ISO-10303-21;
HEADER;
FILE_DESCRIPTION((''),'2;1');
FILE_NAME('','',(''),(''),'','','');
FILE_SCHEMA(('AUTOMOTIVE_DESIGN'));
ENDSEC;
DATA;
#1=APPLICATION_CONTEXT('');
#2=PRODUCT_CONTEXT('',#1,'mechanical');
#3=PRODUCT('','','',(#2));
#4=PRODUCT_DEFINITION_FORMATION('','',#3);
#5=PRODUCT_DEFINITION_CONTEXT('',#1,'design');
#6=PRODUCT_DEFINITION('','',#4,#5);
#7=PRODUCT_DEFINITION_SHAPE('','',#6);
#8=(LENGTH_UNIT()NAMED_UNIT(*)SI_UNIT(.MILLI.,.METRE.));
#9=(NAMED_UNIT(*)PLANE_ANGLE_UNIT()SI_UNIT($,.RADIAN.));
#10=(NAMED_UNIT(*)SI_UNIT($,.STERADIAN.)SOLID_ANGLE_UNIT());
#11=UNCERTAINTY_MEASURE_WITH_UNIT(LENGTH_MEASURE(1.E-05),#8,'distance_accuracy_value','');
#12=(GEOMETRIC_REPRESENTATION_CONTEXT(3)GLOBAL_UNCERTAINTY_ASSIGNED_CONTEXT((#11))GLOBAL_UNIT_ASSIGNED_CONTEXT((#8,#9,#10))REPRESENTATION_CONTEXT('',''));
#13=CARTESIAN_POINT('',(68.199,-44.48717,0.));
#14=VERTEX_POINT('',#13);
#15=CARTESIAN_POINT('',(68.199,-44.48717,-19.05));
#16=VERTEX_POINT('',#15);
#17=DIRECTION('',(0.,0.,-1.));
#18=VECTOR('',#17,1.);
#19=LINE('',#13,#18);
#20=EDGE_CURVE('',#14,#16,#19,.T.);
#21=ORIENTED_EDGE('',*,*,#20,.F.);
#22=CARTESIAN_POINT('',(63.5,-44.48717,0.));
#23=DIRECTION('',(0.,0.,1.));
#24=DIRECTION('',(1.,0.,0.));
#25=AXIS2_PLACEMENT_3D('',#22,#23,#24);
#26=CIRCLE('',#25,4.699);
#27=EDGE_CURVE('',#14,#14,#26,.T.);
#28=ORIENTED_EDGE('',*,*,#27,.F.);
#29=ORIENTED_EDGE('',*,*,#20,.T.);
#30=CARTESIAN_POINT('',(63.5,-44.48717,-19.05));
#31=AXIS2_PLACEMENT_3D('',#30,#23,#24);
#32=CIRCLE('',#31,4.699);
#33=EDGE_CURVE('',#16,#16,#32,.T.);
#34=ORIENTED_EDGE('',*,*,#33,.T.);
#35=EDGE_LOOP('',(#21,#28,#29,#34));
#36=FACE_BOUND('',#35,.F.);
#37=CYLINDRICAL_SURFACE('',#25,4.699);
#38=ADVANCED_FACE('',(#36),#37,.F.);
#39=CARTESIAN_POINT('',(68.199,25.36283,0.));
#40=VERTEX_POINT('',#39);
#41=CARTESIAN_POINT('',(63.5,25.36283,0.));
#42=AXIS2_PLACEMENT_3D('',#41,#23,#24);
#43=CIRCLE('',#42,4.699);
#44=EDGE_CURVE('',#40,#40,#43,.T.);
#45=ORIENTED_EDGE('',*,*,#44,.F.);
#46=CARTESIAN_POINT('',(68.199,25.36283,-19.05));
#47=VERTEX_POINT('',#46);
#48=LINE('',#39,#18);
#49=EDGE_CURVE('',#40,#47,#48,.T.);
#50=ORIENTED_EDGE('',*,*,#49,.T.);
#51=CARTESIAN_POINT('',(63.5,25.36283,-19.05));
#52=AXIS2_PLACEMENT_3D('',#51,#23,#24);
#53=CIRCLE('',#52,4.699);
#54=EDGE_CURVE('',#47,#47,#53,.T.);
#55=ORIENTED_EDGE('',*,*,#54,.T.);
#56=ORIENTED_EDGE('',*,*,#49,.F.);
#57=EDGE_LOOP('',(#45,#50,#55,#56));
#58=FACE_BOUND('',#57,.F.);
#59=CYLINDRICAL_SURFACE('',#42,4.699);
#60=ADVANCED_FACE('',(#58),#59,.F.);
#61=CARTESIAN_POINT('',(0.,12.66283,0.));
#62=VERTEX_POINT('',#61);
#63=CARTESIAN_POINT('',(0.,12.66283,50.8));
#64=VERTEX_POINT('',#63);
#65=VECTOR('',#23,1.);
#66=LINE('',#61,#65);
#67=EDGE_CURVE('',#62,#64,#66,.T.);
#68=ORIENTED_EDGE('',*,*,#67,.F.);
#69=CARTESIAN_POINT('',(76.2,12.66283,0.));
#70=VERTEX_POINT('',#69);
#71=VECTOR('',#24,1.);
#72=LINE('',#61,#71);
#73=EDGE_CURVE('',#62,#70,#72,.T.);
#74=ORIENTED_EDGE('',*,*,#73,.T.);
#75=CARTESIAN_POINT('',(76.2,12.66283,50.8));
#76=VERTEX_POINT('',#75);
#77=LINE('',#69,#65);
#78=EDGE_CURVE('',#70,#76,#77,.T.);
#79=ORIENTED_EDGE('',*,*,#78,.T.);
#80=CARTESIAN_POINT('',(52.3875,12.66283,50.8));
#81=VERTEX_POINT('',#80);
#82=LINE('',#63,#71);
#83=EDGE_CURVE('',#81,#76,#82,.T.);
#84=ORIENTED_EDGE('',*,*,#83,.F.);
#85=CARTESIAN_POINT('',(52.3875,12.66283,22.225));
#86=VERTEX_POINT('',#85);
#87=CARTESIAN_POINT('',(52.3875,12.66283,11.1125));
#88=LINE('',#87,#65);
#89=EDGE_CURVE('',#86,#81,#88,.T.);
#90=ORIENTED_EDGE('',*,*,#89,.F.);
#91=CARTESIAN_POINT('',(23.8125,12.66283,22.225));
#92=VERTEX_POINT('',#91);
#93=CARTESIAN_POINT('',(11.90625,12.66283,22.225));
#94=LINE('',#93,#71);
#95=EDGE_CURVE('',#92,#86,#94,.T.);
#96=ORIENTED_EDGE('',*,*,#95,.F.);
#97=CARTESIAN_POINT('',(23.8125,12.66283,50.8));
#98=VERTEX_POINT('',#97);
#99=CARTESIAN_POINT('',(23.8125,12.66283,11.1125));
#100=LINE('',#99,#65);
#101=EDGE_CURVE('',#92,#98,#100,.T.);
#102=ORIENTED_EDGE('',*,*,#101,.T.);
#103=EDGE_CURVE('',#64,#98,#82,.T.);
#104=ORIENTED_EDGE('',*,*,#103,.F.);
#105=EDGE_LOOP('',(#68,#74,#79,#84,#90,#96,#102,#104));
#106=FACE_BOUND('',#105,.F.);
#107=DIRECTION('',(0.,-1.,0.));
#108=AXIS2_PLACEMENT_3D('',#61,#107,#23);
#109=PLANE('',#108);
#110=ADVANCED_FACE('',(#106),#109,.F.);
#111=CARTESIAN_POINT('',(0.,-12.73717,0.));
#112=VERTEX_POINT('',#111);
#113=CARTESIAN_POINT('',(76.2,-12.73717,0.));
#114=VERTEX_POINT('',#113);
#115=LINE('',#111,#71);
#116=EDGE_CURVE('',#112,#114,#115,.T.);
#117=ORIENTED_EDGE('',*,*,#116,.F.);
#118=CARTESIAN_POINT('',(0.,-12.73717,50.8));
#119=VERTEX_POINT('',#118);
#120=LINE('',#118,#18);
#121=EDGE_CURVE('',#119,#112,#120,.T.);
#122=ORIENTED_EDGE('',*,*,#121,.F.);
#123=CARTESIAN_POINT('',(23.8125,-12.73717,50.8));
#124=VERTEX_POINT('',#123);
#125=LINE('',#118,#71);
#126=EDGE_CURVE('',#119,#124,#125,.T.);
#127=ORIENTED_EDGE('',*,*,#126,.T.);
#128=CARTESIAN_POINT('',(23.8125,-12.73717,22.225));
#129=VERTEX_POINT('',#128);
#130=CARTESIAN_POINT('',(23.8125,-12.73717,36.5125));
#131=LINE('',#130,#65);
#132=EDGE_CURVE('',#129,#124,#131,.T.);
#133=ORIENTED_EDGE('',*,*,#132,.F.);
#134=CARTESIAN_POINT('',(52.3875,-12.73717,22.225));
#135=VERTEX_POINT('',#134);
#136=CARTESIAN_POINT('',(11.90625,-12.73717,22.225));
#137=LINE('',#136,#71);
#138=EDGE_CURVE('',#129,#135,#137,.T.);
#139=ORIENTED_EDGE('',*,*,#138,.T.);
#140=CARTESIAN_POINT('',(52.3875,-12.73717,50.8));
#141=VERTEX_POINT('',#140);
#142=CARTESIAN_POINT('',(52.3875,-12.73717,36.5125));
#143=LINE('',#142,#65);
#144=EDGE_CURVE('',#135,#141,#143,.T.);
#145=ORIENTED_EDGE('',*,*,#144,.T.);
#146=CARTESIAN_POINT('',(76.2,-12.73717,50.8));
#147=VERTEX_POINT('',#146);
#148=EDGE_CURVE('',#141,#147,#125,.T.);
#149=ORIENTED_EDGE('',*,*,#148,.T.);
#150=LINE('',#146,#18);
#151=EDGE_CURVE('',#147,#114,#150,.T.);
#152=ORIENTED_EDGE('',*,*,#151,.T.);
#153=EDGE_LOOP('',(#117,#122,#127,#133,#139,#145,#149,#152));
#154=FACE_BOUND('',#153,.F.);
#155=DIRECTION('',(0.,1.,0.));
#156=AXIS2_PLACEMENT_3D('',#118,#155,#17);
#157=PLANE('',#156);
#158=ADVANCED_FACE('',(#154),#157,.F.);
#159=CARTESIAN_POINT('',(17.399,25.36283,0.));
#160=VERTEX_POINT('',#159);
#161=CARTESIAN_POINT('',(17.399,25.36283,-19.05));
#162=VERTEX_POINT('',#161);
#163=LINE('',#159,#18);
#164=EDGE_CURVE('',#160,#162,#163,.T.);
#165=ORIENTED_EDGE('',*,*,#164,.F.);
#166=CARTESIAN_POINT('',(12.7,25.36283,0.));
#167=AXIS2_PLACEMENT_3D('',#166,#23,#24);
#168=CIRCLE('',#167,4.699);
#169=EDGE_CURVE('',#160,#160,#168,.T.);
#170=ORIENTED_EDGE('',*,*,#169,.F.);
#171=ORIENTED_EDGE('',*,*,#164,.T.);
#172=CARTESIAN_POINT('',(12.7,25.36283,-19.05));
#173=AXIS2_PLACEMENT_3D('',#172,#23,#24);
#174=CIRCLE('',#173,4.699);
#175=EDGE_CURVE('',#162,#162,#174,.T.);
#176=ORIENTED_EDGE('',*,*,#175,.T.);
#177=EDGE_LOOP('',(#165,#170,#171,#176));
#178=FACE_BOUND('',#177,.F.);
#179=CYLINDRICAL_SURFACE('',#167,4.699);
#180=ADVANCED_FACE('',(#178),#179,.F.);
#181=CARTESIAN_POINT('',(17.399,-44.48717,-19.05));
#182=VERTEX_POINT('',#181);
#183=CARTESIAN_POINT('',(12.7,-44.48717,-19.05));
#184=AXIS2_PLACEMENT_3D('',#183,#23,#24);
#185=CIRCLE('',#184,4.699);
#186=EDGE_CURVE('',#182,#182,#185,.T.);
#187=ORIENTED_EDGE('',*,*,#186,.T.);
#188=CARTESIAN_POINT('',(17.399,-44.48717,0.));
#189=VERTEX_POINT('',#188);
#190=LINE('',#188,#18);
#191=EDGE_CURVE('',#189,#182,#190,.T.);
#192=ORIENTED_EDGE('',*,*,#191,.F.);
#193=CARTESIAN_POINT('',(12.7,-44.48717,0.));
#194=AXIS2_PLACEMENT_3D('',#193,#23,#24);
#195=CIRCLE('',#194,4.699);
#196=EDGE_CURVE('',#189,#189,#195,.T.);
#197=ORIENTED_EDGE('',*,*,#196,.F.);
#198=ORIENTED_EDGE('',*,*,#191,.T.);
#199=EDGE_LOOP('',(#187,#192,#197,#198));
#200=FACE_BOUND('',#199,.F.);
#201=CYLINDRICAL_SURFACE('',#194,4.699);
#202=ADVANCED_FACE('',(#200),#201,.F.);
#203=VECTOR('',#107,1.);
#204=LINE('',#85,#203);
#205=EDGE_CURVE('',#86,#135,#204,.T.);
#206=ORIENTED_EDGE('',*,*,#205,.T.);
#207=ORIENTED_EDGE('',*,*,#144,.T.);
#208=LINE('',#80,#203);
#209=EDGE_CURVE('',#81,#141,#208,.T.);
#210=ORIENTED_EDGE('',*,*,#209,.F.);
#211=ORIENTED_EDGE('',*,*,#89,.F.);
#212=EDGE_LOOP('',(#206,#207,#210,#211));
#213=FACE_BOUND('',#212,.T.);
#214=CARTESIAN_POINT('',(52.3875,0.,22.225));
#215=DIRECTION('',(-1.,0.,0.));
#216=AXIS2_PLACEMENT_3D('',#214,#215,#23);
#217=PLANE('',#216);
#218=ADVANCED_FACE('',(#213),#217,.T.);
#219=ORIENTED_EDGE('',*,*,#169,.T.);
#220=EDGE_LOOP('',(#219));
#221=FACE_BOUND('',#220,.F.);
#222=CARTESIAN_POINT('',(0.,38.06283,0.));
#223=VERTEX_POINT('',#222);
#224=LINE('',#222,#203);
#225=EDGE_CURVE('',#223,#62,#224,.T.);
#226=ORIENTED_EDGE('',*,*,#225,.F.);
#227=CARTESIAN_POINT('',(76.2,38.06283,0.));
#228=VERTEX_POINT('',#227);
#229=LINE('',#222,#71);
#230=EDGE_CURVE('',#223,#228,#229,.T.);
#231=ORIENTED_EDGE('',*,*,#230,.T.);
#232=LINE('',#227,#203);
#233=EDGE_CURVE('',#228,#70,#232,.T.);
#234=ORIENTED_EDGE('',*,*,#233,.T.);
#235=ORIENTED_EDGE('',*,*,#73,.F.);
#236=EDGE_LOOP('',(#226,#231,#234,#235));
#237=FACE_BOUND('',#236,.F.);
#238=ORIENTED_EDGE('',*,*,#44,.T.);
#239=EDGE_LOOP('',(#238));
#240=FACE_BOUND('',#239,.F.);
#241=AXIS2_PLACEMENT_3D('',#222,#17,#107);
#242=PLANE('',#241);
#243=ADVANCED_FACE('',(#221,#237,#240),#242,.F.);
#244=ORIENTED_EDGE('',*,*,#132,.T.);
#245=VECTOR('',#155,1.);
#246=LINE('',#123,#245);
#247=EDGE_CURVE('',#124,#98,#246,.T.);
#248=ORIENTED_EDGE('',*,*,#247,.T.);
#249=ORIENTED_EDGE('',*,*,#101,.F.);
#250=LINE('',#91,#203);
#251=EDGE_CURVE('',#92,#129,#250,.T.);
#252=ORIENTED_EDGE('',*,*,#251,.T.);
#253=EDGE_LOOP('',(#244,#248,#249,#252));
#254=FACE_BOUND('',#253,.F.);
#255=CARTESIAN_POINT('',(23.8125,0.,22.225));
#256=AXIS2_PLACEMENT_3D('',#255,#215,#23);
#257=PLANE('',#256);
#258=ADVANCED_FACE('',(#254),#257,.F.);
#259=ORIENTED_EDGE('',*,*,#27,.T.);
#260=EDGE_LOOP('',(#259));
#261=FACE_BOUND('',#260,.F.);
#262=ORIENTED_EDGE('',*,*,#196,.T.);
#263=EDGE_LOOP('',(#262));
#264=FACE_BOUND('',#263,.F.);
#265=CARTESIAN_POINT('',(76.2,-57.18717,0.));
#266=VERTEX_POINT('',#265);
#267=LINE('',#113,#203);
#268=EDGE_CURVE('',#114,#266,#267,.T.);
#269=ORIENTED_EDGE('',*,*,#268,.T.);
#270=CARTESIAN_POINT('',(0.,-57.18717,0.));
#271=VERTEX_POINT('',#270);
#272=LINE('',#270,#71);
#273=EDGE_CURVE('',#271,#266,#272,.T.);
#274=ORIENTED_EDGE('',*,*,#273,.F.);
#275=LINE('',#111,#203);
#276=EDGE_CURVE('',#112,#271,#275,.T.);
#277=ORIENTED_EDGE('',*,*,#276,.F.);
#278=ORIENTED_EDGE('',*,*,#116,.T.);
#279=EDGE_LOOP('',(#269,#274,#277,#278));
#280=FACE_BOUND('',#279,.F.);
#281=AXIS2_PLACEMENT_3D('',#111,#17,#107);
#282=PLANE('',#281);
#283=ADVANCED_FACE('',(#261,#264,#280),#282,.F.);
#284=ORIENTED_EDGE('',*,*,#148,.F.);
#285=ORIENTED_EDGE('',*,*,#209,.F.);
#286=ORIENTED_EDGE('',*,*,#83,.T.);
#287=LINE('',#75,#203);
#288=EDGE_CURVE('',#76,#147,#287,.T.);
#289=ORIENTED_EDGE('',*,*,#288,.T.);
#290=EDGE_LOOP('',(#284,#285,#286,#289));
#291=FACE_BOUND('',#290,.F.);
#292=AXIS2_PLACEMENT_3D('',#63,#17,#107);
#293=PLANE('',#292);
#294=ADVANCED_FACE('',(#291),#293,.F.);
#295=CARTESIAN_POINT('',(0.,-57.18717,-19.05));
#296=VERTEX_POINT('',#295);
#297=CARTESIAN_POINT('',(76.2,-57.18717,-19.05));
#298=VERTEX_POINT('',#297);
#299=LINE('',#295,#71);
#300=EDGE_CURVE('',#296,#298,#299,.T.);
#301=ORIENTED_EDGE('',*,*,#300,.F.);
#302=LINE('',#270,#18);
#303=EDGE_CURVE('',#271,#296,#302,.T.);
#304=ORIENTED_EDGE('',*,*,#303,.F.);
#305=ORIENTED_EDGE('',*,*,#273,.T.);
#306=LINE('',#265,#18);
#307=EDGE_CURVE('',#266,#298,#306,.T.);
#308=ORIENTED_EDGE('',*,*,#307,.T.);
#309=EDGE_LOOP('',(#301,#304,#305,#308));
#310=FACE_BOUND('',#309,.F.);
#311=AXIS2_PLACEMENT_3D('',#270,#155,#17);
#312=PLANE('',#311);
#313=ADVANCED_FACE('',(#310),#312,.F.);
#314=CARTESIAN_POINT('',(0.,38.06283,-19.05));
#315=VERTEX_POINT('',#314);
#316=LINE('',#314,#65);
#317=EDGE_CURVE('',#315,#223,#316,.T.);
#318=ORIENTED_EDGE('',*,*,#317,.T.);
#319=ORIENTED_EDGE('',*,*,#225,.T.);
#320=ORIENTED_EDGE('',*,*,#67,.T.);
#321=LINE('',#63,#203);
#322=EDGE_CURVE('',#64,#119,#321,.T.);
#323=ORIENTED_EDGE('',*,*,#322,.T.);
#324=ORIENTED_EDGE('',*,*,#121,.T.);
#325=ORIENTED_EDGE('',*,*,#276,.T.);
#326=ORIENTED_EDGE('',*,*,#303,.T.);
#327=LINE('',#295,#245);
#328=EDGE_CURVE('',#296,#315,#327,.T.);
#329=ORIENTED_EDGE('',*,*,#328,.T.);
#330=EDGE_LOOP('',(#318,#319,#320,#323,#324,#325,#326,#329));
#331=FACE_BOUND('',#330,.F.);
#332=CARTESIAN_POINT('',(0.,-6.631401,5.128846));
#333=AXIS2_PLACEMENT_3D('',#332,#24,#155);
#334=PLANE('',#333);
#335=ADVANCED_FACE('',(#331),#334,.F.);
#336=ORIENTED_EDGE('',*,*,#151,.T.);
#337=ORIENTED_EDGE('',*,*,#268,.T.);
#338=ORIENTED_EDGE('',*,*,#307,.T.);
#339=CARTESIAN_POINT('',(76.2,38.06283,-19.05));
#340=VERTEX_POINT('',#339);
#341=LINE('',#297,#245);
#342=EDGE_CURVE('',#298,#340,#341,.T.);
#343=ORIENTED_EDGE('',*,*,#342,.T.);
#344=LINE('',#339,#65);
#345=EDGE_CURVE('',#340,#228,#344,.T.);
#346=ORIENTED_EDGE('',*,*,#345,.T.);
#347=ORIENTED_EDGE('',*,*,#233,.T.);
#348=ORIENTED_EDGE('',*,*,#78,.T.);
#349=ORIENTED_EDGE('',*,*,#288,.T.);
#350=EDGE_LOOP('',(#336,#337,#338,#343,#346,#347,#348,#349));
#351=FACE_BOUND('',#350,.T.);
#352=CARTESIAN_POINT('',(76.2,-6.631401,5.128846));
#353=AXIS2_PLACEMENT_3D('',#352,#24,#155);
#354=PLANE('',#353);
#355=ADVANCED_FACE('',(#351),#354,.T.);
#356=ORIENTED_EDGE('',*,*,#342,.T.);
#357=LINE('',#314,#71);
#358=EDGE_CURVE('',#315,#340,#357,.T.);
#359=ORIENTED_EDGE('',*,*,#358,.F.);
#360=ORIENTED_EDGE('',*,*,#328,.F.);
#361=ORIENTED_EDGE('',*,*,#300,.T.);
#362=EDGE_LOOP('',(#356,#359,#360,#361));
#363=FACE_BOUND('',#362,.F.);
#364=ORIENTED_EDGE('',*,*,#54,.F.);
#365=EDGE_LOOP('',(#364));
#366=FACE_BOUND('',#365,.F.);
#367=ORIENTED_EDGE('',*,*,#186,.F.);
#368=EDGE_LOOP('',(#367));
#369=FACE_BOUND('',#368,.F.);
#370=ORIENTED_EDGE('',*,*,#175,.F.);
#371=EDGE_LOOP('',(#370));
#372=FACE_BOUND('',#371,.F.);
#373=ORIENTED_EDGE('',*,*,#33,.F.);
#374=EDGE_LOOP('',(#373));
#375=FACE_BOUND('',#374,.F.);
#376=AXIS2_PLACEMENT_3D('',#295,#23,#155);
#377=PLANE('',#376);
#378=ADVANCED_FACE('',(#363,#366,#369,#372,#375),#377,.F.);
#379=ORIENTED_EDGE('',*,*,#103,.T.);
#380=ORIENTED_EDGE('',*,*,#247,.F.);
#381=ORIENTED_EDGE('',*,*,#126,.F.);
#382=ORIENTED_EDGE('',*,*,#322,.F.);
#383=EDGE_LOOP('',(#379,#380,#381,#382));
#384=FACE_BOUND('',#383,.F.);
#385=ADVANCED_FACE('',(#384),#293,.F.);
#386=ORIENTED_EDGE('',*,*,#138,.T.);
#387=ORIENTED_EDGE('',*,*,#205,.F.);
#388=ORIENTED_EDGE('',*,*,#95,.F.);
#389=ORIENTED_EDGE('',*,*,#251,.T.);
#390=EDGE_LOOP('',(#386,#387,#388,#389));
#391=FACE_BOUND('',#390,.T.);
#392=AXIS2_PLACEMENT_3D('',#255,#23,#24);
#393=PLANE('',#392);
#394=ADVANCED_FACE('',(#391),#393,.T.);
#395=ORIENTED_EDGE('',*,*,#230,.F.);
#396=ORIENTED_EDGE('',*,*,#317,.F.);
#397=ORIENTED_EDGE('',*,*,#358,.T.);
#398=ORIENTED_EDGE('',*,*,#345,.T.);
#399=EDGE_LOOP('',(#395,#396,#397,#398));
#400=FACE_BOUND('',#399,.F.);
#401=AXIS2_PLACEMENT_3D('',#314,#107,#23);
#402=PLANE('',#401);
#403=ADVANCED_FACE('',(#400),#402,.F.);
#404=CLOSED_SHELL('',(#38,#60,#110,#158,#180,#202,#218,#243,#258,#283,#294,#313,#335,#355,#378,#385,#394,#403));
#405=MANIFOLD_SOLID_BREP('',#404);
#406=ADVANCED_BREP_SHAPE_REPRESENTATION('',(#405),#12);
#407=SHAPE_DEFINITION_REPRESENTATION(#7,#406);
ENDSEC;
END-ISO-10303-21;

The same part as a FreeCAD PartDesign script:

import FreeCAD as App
import Part
import Sketcher

V = App.Vector
Q = App.Units.Quantity


def add_polygon(sketch, points):
    """Adds a closed chain of lines whose ends are joined by coincident constraints."""
    first, n = sketch.GeometryCount, len(points)
    for a, b in zip(points, points[1:] + points[:1]):
        sketch.addGeometry(Part.LineSegment(App.Vector(*a, 0), App.Vector(*b, 0)), False)
    for i in range(n):
        sketch.addConstraint(Sketcher.Constraint("Coincident", first + i, 2, first + (i + 1) % n, 1))

doc = App.newDocument("Part")
body = doc.addObject("PartDesign::Body", "Body")

# Sketch on YZ plane
sketch1 = doc.addObject("Sketcher::SketchObject", "Sketch")
body.addObject(sketch1)
sketch1.AttachmentSupport = (doc.YZ_Plane, [""])
sketch1.MapMode = "FlatFace"
add_polygon(sketch1, [(-57, 0), (-57, -19), (38, -19), (38, 0), (13, 0), (13, 51), (-13, 51), (-13, 0)])  # lines 0-7
sketch1.addConstraint(Sketcher.Constraint("Vertical", 0))
sketch1.addConstraint(Sketcher.Constraint("Horizontal", 1))
sketch1.addConstraint(Sketcher.Constraint("Vertical", 2))
sketch1.addConstraint(Sketcher.Constraint("Horizontal", 3))
sketch1.addConstraint(Sketcher.Constraint("Vertical", 4))
sketch1.addConstraint(Sketcher.Constraint("Horizontal", 5))
sketch1.addConstraint(Sketcher.Constraint("Vertical", 6))
sketch1.addConstraint(Sketcher.Constraint("Horizontal", 7))
sketch1.addConstraint(Sketcher.Constraint("PointOnObject", 2, 2, -1))
sketch1.addConstraint(Sketcher.Constraint("PointOnObject", 6, 2, -1))
sketch1.addConstraint(Sketcher.Constraint("Equal", 3, 5))
sketch1.addConstraint(Sketcher.Constraint("DistanceX", 3, 2, 3, 1, Q("1 in")))
sketch1.addConstraint(Sketcher.Constraint("DistanceY", 4, 1, 4, 2, Q("2 in")))
sketch1.addConstraint(Sketcher.Constraint("DistanceX", 1, 1, 1, 2, Q("3.75 in")))
sketch1.addConstraint(Sketcher.Constraint("DistanceY", 0, 2, 0, 1, Q("0.75 in")))
sketch1.addConstraint(Sketcher.Constraint("DistanceX", 0, 2, -1, 1, Q("57.18717 mm")))
pad1 = doc.addObject("PartDesign::Pad", "Pad")
body.addObject(pad1)
pad1.Profile = sketch1
pad1.Length = Q("3 in")

# Sketch on XZ plane
sketch2 = doc.addObject("Sketcher::SketchObject", "Sketch001")
body.addObject(sketch2)
sketch2.AttachmentSupport = (doc.XZ_Plane, [""])
sketch2.MapMode = "FlatFace"
add_polygon(sketch2, [(24, 79), (24, 22), (52, 22), (52, 79)])  # lines 0-3
sketch2.addConstraint(Sketcher.Constraint("Vertical", 0))
sketch2.addConstraint(Sketcher.Constraint("Horizontal", 1))
sketch2.addConstraint(Sketcher.Constraint("Vertical", 2))
sketch2.addConstraint(Sketcher.Constraint("Horizontal", 3))
sketch2.addConstraint(Sketcher.Constraint("DistanceY", 0, 2, 0, 1, Q("2.25 in")))
sketch2.addConstraint(Sketcher.Constraint("DistanceX", 1, 1, 1, 2, Q("1.125 in")))
sketch2.addConstraint(Sketcher.Constraint("DistanceX", -1, 1, 0, 2, Q("0.9375 in")))
sketch2.addConstraint(Sketcher.Constraint("DistanceY", -1, 1, 0, 2, Q("0.875 in")))
pocket1 = doc.addObject("PartDesign::Pocket", "Pocket")
body.addObject(pocket1)
pocket1.Profile = sketch2
pocket1.Type = "ThroughAll"
pocket1.Midplane = True

# Sketch on XY plane
sketch3 = doc.addObject("Sketcher::SketchObject", "Sketch002")
body.addObject(sketch3)
sketch3.AttachmentSupport = (doc.XY_Plane, [""])
sketch3.MapMode = "FlatFace"
sketch3.addGeometry(Part.Circle(V(12.7, 25.4, 0), V(0, 0, 1), 4.7), False)
sketch3.addGeometry(Part.Circle(V(63.5, 25.4, 0), V(0, 0, 1), 4.7), False)
sketch3.addGeometry(Part.Circle(V(12.7, -44.5, 0), V(0, 0, 1), 4.7), False)
sketch3.addGeometry(Part.Circle(V(63.5, -44.5, 0), V(0, 0, 1), 4.7), False)
sketch3.addConstraint(Sketcher.Constraint("Equal", 0, 1))
sketch3.addConstraint(Sketcher.Constraint("Equal", 1, 2))
sketch3.addConstraint(Sketcher.Constraint("Equal", 2, 3))
sketch3.addConstraint(Sketcher.Constraint("Horizontal", 0, 3, 1, 3))
sketch3.addConstraint(Sketcher.Constraint("Horizontal", 2, 3, 3, 3))
sketch3.addConstraint(Sketcher.Constraint("Vertical", 0, 3, 2, 3))
sketch3.addConstraint(Sketcher.Constraint("Vertical", 1, 3, 3, 3))
sketch3.addConstraint(Sketcher.Constraint("Diameter", 0, Q("0.37 in")))
sketch3.addConstraint(Sketcher.Constraint("DistanceX", 0, 3, 1, 3, Q("2 in")))
sketch3.addConstraint(Sketcher.Constraint("DistanceX", -1, 1, 0, 3, Q("0.5 in")))
sketch3.addConstraint(Sketcher.Constraint("DistanceY", 2, 3, 0, 3, Q("2.75 in")))
sketch3.addConstraint(Sketcher.Constraint("DistanceY", -1, 1, 0, 3, Q("25.36283 mm")))
pocket2 = doc.addObject("PartDesign::Pocket", "Pocket001")
body.addObject(pocket2)
pocket2.Profile = sketch3
pocket2.Type = "ThroughAll"

doc.recompute()
